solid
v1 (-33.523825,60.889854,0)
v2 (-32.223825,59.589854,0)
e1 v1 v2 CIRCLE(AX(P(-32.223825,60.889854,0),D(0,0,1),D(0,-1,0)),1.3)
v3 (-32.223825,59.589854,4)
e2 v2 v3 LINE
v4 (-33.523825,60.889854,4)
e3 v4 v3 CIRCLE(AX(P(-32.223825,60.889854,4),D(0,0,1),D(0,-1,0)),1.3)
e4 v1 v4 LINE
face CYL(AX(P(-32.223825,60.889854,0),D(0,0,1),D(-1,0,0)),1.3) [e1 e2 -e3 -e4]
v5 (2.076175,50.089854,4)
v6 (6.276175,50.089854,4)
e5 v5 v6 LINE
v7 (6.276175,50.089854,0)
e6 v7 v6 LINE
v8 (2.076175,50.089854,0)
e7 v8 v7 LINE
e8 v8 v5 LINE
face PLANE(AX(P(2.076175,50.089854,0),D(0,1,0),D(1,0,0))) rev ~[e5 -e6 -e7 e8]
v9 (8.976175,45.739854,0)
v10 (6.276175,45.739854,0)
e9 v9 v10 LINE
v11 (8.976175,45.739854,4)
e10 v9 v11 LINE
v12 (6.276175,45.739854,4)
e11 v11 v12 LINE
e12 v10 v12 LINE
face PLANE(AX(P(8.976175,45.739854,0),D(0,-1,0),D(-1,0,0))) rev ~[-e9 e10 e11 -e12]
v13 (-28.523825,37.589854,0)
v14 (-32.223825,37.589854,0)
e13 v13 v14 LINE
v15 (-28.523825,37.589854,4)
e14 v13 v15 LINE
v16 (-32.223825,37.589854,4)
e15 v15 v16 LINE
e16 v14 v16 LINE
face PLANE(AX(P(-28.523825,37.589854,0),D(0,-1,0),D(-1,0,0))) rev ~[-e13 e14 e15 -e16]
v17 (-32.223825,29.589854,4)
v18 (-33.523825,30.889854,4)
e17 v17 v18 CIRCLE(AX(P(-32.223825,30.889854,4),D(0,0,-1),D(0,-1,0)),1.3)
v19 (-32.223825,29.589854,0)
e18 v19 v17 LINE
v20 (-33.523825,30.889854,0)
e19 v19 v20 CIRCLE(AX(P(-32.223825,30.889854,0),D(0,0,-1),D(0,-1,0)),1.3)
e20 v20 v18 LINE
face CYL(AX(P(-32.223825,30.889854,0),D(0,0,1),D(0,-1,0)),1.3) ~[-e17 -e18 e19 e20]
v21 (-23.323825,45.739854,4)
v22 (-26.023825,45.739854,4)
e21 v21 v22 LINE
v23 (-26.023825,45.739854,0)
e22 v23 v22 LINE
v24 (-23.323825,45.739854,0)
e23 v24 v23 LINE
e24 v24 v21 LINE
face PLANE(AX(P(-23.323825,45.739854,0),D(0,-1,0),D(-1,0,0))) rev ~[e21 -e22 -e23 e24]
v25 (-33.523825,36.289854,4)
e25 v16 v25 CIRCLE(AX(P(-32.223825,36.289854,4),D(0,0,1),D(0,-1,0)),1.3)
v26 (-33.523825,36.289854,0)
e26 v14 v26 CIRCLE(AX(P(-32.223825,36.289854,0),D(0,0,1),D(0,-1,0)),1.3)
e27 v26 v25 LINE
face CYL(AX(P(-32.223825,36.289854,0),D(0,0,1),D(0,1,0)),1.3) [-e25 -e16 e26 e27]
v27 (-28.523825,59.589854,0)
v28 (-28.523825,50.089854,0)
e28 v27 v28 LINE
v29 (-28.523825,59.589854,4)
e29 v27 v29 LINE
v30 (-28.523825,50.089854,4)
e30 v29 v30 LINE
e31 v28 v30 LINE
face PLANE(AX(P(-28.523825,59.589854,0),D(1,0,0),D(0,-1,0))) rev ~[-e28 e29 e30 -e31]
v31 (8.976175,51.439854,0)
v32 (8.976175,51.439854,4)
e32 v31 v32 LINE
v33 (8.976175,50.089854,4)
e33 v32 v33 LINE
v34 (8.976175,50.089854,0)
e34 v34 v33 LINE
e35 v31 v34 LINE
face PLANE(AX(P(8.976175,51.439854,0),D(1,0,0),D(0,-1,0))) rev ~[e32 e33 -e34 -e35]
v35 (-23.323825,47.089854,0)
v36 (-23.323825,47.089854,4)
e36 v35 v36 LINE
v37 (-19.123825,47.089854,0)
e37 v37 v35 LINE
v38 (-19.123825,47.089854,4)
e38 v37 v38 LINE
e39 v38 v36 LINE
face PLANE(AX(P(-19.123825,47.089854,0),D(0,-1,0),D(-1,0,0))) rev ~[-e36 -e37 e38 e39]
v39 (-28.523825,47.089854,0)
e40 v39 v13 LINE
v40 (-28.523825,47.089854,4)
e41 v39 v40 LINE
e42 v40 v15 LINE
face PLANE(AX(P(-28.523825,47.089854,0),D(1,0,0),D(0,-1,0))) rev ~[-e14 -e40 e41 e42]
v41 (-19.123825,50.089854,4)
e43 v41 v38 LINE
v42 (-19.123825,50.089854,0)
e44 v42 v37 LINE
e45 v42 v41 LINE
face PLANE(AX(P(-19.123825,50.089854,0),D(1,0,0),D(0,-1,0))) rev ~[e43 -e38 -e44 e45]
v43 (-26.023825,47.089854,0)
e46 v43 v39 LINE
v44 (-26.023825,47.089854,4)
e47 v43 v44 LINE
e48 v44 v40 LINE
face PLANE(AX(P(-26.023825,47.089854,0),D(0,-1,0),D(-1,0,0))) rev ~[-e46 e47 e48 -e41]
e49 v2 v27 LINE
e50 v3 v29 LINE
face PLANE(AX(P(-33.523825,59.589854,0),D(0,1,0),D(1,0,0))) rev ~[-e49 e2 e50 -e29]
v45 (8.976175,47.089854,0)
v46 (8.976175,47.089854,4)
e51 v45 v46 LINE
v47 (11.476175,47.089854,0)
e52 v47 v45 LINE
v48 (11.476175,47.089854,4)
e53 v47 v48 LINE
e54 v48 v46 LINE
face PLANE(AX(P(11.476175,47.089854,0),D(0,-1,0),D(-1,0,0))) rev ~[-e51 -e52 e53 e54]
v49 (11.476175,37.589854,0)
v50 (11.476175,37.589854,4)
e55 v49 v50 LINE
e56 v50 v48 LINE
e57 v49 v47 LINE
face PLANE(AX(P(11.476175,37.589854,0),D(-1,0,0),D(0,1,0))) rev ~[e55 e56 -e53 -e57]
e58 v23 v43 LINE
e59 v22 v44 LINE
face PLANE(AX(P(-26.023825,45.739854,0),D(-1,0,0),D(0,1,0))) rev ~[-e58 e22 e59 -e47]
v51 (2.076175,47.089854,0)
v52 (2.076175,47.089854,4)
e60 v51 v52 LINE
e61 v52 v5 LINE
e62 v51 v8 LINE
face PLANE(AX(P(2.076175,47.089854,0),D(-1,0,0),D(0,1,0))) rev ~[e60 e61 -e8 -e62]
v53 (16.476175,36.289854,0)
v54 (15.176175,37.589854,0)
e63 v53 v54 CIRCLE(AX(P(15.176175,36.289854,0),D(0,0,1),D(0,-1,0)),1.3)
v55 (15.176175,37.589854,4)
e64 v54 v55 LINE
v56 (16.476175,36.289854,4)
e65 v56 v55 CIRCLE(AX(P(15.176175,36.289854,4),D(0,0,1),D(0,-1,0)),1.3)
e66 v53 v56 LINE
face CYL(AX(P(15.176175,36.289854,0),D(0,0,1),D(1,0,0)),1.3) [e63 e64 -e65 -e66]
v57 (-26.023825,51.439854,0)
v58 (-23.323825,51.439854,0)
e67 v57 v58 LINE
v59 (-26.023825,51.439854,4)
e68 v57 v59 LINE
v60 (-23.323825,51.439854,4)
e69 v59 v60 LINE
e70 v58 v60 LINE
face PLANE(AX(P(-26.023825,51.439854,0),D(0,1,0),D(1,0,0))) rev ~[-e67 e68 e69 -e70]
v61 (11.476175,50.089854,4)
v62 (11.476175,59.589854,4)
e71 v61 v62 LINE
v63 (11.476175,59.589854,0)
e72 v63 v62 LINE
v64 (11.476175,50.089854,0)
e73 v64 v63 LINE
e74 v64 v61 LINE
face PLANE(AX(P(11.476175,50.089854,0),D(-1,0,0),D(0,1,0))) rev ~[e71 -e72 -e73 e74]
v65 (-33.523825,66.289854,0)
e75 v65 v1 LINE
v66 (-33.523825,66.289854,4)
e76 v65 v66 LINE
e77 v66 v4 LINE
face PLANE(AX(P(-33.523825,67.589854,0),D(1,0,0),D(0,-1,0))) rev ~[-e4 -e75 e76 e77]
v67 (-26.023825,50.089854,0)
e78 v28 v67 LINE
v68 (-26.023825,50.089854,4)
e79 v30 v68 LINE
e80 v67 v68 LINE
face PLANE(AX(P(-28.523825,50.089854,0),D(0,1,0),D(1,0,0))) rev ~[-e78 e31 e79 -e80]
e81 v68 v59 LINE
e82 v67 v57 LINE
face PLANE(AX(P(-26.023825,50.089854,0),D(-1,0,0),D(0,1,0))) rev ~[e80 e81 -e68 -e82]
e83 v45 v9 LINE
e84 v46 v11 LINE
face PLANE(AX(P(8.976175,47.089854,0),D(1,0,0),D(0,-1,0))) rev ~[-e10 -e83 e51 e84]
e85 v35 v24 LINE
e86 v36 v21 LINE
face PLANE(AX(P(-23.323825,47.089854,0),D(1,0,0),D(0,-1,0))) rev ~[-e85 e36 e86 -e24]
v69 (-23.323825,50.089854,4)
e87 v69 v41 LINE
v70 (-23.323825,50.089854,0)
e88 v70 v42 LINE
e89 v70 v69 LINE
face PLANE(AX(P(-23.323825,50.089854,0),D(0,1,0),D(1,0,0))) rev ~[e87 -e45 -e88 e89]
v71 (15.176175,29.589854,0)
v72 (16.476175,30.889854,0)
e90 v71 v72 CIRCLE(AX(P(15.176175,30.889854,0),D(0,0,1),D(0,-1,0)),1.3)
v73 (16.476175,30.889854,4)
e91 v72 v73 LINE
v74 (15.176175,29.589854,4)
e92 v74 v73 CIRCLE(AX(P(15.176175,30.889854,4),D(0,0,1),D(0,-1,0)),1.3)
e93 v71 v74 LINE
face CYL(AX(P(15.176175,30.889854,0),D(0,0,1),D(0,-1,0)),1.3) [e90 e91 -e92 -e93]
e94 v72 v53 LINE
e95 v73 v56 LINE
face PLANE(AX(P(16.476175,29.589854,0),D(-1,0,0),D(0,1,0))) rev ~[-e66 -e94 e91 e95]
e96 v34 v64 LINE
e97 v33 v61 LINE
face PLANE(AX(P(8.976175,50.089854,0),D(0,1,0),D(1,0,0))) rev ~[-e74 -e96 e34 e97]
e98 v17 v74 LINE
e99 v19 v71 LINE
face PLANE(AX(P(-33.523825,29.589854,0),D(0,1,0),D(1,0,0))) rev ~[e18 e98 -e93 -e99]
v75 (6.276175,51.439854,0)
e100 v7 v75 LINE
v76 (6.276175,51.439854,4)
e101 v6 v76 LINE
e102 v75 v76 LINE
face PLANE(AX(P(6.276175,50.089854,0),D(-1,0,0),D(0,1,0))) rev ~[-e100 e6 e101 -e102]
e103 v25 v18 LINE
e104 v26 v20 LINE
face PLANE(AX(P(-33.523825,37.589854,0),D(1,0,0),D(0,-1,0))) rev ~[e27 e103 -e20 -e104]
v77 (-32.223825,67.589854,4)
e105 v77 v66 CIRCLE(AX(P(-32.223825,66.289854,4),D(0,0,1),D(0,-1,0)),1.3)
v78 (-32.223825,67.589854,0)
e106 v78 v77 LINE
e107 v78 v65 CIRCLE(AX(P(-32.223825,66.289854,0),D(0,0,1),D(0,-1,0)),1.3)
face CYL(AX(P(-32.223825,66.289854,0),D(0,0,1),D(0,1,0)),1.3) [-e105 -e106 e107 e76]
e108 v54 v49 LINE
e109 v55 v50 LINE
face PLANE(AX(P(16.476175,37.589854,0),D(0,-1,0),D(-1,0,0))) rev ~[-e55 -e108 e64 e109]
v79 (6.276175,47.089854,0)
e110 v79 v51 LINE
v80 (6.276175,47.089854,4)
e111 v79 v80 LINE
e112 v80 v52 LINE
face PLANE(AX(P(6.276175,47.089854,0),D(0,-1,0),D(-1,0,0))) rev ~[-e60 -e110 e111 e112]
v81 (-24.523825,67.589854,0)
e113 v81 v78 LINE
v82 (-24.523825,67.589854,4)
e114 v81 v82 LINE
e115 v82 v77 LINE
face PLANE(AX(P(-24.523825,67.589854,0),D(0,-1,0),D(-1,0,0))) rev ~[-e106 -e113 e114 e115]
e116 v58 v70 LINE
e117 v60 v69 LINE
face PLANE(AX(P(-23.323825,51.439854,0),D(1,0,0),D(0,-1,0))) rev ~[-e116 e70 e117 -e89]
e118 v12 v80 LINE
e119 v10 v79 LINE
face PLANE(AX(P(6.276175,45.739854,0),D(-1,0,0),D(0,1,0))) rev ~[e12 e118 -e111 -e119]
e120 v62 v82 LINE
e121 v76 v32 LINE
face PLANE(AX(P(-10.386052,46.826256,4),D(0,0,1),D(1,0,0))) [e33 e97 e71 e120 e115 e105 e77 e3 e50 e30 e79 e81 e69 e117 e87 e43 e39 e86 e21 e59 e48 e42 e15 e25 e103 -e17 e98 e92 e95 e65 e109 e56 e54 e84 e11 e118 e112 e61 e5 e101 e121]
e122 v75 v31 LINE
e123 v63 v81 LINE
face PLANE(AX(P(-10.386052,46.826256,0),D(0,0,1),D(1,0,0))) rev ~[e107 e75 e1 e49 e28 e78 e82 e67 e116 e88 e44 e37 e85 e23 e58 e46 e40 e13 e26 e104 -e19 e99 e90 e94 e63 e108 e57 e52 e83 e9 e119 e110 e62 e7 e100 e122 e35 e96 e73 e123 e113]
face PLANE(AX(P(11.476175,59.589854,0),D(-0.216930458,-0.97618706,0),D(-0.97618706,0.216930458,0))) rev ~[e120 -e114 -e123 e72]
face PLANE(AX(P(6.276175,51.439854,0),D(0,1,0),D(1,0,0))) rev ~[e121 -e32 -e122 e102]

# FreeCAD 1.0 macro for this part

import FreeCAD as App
import Part
import Sketcher

V = App.Vector


def edges_at(feature, points):
    """Names of the edges that pass closest to the given points."""
    edges = feature.Shape.Edges
    near = lambda p: min(range(len(edges)), key=lambda i: edges[i].distToShape(Part.Vertex(*p))[0])
    return sorted({f"Edge{near(p) + 1}" for p in points})


def add_polygon(sketch, points):
    """Adds a closed chain of lines whose ends are joined by coincident constraints."""
    first, n = sketch.GeometryCount, len(points)
    for a, b in zip(points, points[1:] + points[:1]):
        sketch.addGeometry(Part.LineSegment(App.Vector(*a, 0), App.Vector(*b, 0)), False)
    for i in range(n):
        sketch.addConstraint(Sketcher.Constraint("Coincident", first + i, 2, first + (i + 1) % n, 1))

doc = App.newDocument("Part")
body = doc.addObject("PartDesign::Body", "Body")

# Sketch on XY plane
sketch1 = body.newObject("Sketcher::SketchObject", "Sketch")
sketch1.AttachmentSupport = (doc.getObject("XY_Plane"), [""])
sketch1.MapMode = "FlatFace"
add_polygon(sketch1, [(-33.5, 29.6), (16.5, 29.6), (16.5, 37.6), (11.5, 37.6), (11.5, 47.1), (9, 47.1), (9, 45.7), (6.3, 45.7), (6.3, 47.1), (2.1, 47.1), (2.1, 50.1), (6.3, 50.1), (6.3, 51.4), (9, 51.4), (9, 50.1), (11.5, 50.1), (11.5, 59.6), (-24.5, 67.6), (-33.5, 67.6), (-33.5, 59.6), (-28.5, 59.6), (-28.5, 50.1), (-26, 50.1), (-26, 51.4), (-23.3, 51.4), (-23.3, 50.1), (-19.1, 50.1), (-19.1, 47.1), (-23.3, 47.1), (-23.3, 45.7), (-26, 45.7), (-26, 47.1), (-28.5, 47.1), (-28.5, 37.6), (-33.5, 37.6)])  # lines 0-34
sketch1.addConstraint([
    Sketcher.Constraint("Horizontal", 0),
    Sketcher.Constraint("Vertical", 1),
    Sketcher.Constraint("Horizontal", 2),
    Sketcher.Constraint("Vertical", 3),
    Sketcher.Constraint("Horizontal", 4),
    Sketcher.Constraint("Vertical", 5),
    Sketcher.Constraint("Horizontal", 6),
    Sketcher.Constraint("Vertical", 7),
    Sketcher.Constraint("Horizontal", 8),
    Sketcher.Constraint("Vertical", 9),
    Sketcher.Constraint("Horizontal", 10),
    Sketcher.Constraint("Vertical", 11),
    Sketcher.Constraint("Horizontal", 12),
    Sketcher.Constraint("Vertical", 13),
    Sketcher.Constraint("Horizontal", 14),
    Sketcher.Constraint("Vertical", 15),
    Sketcher.Constraint("Horizontal", 17),
    Sketcher.Constraint("Vertical", 18),
    Sketcher.Constraint("Horizontal", 19),
    Sketcher.Constraint("Vertical", 20),
    Sketcher.Constraint("Horizontal", 21),
    Sketcher.Constraint("Vertical", 22),
    Sketcher.Constraint("Horizontal", 23),
    Sketcher.Constraint("Vertical", 24),
    Sketcher.Constraint("Horizontal", 25),
    Sketcher.Constraint("Vertical", 26),
    Sketcher.Constraint("Horizontal", 27),
    Sketcher.Constraint("Vertical", 28),
    Sketcher.Constraint("Horizontal", 29),
    Sketcher.Constraint("Vertical", 30),
    Sketcher.Constraint("Horizontal", 31),
    Sketcher.Constraint("Vertical", 32),
    Sketcher.Constraint("Horizontal", 33),
    Sketcher.Constraint("Vertical", 34),
    Sketcher.Constraint("Horizontal", 4, 2, 7, 2),
    Sketcher.Constraint("Horizontal", 10, 2, 13, 2),
    Sketcher.Constraint("Horizontal", 15, 2, 18, 2),
    Sketcher.Constraint("Horizontal", 14, 2, 20, 2),
    Sketcher.Constraint("Horizontal", 12, 2, 22, 2),
    Sketcher.Constraint("Horizontal", 21, 2, 24, 2),
    Sketcher.Constraint("Horizontal", 8, 2, 26, 2),
    Sketcher.Constraint("Horizontal", 6, 2, 28, 2),
    Sketcher.Constraint("Horizontal", 27, 2, 30, 2),
    Sketcher.Constraint("Horizontal", 2, 2, 32, 2),
    Sketcher.Constraint("Vertical", 7, 2, 10, 2),
    Sketcher.Constraint("Vertical", 5, 2, 12, 2),
    Sketcher.Constraint("Vertical", 3, 2, 14, 2),
    Sketcher.Constraint("Vertical", 24, 2, 27, 2),
    Sketcher.Constraint("Vertical", 22, 2, 29, 2),
    Sketcher.Constraint("Vertical", 20, 2, 31, 2),
    Sketcher.Constraint("Vertical", 18, 2, 33, 2),
    Sketcher.Constraint("Equal", 2, 19),
    Sketcher.Constraint("Equal", 14, 21),
    Sketcher.Constraint("Equal", 12, 23),
    Sketcher.Constraint("Equal", 10, 25),
    Sketcher.Constraint("Equal", 7, 11),
    Sketcher.Constraint("Equal", 3, 15),
    Sketcher.Constraint("Equal", 1, 18),
    Sketcher.Constraint("DistanceX", 0, 1, 0, 2, 50.0),
    Sketcher.Constraint("DistanceX", 2, 2, 2, 1, 5.0),
    Sketcher.Constraint("DistanceX", 17, 2, 17, 1, 9.0),
    Sketcher.Constraint("DistanceY", 1, 1, 1, 2, 8.0),
    Sketcher.Constraint("DistanceY", 9, 1, 9, 2, 3.0),
    Sketcher.Constraint("DistanceX", 4, 2, 4, 1, 2.5),
    Sketcher.Constraint("DistanceX", 6, 2, 6, 1, 2.7),
    Sketcher.Constraint("DistanceX", 8, 2, 8, 1, 4.2),
    Sketcher.Constraint("DistanceY", 3, 1, 3, 2, 9.5),
    Sketcher.Constraint("DistanceY", 5, 2, 5, 1, 1.35),
    Sketcher.Constraint("DistanceX", -1, 1, 0, 2, 16.476175),
    Sketcher.Constraint("DistanceY", -1, 1, 0, 2, 29.589854),
])
pad1 = body.newObject("PartDesign::Pad", "Pad")
pad1.Profile = sketch1
pad1.Length = 4
doc.recompute()

fillet = body.newObject("PartDesign::Fillet", "Fillet")
fillet.Base = (pad1, edges_at(pad1, [
    (-33.524, 59.59, 2),
    (-33.524, 67.59, 2),
    (16.476, 37.59, 2),
    (16.476, 29.59, 2),
    (-33.524, 29.59, 2),
    (-33.524, 37.59, 2),
]))
fillet.Radius = 1.3

doc.recompute()
